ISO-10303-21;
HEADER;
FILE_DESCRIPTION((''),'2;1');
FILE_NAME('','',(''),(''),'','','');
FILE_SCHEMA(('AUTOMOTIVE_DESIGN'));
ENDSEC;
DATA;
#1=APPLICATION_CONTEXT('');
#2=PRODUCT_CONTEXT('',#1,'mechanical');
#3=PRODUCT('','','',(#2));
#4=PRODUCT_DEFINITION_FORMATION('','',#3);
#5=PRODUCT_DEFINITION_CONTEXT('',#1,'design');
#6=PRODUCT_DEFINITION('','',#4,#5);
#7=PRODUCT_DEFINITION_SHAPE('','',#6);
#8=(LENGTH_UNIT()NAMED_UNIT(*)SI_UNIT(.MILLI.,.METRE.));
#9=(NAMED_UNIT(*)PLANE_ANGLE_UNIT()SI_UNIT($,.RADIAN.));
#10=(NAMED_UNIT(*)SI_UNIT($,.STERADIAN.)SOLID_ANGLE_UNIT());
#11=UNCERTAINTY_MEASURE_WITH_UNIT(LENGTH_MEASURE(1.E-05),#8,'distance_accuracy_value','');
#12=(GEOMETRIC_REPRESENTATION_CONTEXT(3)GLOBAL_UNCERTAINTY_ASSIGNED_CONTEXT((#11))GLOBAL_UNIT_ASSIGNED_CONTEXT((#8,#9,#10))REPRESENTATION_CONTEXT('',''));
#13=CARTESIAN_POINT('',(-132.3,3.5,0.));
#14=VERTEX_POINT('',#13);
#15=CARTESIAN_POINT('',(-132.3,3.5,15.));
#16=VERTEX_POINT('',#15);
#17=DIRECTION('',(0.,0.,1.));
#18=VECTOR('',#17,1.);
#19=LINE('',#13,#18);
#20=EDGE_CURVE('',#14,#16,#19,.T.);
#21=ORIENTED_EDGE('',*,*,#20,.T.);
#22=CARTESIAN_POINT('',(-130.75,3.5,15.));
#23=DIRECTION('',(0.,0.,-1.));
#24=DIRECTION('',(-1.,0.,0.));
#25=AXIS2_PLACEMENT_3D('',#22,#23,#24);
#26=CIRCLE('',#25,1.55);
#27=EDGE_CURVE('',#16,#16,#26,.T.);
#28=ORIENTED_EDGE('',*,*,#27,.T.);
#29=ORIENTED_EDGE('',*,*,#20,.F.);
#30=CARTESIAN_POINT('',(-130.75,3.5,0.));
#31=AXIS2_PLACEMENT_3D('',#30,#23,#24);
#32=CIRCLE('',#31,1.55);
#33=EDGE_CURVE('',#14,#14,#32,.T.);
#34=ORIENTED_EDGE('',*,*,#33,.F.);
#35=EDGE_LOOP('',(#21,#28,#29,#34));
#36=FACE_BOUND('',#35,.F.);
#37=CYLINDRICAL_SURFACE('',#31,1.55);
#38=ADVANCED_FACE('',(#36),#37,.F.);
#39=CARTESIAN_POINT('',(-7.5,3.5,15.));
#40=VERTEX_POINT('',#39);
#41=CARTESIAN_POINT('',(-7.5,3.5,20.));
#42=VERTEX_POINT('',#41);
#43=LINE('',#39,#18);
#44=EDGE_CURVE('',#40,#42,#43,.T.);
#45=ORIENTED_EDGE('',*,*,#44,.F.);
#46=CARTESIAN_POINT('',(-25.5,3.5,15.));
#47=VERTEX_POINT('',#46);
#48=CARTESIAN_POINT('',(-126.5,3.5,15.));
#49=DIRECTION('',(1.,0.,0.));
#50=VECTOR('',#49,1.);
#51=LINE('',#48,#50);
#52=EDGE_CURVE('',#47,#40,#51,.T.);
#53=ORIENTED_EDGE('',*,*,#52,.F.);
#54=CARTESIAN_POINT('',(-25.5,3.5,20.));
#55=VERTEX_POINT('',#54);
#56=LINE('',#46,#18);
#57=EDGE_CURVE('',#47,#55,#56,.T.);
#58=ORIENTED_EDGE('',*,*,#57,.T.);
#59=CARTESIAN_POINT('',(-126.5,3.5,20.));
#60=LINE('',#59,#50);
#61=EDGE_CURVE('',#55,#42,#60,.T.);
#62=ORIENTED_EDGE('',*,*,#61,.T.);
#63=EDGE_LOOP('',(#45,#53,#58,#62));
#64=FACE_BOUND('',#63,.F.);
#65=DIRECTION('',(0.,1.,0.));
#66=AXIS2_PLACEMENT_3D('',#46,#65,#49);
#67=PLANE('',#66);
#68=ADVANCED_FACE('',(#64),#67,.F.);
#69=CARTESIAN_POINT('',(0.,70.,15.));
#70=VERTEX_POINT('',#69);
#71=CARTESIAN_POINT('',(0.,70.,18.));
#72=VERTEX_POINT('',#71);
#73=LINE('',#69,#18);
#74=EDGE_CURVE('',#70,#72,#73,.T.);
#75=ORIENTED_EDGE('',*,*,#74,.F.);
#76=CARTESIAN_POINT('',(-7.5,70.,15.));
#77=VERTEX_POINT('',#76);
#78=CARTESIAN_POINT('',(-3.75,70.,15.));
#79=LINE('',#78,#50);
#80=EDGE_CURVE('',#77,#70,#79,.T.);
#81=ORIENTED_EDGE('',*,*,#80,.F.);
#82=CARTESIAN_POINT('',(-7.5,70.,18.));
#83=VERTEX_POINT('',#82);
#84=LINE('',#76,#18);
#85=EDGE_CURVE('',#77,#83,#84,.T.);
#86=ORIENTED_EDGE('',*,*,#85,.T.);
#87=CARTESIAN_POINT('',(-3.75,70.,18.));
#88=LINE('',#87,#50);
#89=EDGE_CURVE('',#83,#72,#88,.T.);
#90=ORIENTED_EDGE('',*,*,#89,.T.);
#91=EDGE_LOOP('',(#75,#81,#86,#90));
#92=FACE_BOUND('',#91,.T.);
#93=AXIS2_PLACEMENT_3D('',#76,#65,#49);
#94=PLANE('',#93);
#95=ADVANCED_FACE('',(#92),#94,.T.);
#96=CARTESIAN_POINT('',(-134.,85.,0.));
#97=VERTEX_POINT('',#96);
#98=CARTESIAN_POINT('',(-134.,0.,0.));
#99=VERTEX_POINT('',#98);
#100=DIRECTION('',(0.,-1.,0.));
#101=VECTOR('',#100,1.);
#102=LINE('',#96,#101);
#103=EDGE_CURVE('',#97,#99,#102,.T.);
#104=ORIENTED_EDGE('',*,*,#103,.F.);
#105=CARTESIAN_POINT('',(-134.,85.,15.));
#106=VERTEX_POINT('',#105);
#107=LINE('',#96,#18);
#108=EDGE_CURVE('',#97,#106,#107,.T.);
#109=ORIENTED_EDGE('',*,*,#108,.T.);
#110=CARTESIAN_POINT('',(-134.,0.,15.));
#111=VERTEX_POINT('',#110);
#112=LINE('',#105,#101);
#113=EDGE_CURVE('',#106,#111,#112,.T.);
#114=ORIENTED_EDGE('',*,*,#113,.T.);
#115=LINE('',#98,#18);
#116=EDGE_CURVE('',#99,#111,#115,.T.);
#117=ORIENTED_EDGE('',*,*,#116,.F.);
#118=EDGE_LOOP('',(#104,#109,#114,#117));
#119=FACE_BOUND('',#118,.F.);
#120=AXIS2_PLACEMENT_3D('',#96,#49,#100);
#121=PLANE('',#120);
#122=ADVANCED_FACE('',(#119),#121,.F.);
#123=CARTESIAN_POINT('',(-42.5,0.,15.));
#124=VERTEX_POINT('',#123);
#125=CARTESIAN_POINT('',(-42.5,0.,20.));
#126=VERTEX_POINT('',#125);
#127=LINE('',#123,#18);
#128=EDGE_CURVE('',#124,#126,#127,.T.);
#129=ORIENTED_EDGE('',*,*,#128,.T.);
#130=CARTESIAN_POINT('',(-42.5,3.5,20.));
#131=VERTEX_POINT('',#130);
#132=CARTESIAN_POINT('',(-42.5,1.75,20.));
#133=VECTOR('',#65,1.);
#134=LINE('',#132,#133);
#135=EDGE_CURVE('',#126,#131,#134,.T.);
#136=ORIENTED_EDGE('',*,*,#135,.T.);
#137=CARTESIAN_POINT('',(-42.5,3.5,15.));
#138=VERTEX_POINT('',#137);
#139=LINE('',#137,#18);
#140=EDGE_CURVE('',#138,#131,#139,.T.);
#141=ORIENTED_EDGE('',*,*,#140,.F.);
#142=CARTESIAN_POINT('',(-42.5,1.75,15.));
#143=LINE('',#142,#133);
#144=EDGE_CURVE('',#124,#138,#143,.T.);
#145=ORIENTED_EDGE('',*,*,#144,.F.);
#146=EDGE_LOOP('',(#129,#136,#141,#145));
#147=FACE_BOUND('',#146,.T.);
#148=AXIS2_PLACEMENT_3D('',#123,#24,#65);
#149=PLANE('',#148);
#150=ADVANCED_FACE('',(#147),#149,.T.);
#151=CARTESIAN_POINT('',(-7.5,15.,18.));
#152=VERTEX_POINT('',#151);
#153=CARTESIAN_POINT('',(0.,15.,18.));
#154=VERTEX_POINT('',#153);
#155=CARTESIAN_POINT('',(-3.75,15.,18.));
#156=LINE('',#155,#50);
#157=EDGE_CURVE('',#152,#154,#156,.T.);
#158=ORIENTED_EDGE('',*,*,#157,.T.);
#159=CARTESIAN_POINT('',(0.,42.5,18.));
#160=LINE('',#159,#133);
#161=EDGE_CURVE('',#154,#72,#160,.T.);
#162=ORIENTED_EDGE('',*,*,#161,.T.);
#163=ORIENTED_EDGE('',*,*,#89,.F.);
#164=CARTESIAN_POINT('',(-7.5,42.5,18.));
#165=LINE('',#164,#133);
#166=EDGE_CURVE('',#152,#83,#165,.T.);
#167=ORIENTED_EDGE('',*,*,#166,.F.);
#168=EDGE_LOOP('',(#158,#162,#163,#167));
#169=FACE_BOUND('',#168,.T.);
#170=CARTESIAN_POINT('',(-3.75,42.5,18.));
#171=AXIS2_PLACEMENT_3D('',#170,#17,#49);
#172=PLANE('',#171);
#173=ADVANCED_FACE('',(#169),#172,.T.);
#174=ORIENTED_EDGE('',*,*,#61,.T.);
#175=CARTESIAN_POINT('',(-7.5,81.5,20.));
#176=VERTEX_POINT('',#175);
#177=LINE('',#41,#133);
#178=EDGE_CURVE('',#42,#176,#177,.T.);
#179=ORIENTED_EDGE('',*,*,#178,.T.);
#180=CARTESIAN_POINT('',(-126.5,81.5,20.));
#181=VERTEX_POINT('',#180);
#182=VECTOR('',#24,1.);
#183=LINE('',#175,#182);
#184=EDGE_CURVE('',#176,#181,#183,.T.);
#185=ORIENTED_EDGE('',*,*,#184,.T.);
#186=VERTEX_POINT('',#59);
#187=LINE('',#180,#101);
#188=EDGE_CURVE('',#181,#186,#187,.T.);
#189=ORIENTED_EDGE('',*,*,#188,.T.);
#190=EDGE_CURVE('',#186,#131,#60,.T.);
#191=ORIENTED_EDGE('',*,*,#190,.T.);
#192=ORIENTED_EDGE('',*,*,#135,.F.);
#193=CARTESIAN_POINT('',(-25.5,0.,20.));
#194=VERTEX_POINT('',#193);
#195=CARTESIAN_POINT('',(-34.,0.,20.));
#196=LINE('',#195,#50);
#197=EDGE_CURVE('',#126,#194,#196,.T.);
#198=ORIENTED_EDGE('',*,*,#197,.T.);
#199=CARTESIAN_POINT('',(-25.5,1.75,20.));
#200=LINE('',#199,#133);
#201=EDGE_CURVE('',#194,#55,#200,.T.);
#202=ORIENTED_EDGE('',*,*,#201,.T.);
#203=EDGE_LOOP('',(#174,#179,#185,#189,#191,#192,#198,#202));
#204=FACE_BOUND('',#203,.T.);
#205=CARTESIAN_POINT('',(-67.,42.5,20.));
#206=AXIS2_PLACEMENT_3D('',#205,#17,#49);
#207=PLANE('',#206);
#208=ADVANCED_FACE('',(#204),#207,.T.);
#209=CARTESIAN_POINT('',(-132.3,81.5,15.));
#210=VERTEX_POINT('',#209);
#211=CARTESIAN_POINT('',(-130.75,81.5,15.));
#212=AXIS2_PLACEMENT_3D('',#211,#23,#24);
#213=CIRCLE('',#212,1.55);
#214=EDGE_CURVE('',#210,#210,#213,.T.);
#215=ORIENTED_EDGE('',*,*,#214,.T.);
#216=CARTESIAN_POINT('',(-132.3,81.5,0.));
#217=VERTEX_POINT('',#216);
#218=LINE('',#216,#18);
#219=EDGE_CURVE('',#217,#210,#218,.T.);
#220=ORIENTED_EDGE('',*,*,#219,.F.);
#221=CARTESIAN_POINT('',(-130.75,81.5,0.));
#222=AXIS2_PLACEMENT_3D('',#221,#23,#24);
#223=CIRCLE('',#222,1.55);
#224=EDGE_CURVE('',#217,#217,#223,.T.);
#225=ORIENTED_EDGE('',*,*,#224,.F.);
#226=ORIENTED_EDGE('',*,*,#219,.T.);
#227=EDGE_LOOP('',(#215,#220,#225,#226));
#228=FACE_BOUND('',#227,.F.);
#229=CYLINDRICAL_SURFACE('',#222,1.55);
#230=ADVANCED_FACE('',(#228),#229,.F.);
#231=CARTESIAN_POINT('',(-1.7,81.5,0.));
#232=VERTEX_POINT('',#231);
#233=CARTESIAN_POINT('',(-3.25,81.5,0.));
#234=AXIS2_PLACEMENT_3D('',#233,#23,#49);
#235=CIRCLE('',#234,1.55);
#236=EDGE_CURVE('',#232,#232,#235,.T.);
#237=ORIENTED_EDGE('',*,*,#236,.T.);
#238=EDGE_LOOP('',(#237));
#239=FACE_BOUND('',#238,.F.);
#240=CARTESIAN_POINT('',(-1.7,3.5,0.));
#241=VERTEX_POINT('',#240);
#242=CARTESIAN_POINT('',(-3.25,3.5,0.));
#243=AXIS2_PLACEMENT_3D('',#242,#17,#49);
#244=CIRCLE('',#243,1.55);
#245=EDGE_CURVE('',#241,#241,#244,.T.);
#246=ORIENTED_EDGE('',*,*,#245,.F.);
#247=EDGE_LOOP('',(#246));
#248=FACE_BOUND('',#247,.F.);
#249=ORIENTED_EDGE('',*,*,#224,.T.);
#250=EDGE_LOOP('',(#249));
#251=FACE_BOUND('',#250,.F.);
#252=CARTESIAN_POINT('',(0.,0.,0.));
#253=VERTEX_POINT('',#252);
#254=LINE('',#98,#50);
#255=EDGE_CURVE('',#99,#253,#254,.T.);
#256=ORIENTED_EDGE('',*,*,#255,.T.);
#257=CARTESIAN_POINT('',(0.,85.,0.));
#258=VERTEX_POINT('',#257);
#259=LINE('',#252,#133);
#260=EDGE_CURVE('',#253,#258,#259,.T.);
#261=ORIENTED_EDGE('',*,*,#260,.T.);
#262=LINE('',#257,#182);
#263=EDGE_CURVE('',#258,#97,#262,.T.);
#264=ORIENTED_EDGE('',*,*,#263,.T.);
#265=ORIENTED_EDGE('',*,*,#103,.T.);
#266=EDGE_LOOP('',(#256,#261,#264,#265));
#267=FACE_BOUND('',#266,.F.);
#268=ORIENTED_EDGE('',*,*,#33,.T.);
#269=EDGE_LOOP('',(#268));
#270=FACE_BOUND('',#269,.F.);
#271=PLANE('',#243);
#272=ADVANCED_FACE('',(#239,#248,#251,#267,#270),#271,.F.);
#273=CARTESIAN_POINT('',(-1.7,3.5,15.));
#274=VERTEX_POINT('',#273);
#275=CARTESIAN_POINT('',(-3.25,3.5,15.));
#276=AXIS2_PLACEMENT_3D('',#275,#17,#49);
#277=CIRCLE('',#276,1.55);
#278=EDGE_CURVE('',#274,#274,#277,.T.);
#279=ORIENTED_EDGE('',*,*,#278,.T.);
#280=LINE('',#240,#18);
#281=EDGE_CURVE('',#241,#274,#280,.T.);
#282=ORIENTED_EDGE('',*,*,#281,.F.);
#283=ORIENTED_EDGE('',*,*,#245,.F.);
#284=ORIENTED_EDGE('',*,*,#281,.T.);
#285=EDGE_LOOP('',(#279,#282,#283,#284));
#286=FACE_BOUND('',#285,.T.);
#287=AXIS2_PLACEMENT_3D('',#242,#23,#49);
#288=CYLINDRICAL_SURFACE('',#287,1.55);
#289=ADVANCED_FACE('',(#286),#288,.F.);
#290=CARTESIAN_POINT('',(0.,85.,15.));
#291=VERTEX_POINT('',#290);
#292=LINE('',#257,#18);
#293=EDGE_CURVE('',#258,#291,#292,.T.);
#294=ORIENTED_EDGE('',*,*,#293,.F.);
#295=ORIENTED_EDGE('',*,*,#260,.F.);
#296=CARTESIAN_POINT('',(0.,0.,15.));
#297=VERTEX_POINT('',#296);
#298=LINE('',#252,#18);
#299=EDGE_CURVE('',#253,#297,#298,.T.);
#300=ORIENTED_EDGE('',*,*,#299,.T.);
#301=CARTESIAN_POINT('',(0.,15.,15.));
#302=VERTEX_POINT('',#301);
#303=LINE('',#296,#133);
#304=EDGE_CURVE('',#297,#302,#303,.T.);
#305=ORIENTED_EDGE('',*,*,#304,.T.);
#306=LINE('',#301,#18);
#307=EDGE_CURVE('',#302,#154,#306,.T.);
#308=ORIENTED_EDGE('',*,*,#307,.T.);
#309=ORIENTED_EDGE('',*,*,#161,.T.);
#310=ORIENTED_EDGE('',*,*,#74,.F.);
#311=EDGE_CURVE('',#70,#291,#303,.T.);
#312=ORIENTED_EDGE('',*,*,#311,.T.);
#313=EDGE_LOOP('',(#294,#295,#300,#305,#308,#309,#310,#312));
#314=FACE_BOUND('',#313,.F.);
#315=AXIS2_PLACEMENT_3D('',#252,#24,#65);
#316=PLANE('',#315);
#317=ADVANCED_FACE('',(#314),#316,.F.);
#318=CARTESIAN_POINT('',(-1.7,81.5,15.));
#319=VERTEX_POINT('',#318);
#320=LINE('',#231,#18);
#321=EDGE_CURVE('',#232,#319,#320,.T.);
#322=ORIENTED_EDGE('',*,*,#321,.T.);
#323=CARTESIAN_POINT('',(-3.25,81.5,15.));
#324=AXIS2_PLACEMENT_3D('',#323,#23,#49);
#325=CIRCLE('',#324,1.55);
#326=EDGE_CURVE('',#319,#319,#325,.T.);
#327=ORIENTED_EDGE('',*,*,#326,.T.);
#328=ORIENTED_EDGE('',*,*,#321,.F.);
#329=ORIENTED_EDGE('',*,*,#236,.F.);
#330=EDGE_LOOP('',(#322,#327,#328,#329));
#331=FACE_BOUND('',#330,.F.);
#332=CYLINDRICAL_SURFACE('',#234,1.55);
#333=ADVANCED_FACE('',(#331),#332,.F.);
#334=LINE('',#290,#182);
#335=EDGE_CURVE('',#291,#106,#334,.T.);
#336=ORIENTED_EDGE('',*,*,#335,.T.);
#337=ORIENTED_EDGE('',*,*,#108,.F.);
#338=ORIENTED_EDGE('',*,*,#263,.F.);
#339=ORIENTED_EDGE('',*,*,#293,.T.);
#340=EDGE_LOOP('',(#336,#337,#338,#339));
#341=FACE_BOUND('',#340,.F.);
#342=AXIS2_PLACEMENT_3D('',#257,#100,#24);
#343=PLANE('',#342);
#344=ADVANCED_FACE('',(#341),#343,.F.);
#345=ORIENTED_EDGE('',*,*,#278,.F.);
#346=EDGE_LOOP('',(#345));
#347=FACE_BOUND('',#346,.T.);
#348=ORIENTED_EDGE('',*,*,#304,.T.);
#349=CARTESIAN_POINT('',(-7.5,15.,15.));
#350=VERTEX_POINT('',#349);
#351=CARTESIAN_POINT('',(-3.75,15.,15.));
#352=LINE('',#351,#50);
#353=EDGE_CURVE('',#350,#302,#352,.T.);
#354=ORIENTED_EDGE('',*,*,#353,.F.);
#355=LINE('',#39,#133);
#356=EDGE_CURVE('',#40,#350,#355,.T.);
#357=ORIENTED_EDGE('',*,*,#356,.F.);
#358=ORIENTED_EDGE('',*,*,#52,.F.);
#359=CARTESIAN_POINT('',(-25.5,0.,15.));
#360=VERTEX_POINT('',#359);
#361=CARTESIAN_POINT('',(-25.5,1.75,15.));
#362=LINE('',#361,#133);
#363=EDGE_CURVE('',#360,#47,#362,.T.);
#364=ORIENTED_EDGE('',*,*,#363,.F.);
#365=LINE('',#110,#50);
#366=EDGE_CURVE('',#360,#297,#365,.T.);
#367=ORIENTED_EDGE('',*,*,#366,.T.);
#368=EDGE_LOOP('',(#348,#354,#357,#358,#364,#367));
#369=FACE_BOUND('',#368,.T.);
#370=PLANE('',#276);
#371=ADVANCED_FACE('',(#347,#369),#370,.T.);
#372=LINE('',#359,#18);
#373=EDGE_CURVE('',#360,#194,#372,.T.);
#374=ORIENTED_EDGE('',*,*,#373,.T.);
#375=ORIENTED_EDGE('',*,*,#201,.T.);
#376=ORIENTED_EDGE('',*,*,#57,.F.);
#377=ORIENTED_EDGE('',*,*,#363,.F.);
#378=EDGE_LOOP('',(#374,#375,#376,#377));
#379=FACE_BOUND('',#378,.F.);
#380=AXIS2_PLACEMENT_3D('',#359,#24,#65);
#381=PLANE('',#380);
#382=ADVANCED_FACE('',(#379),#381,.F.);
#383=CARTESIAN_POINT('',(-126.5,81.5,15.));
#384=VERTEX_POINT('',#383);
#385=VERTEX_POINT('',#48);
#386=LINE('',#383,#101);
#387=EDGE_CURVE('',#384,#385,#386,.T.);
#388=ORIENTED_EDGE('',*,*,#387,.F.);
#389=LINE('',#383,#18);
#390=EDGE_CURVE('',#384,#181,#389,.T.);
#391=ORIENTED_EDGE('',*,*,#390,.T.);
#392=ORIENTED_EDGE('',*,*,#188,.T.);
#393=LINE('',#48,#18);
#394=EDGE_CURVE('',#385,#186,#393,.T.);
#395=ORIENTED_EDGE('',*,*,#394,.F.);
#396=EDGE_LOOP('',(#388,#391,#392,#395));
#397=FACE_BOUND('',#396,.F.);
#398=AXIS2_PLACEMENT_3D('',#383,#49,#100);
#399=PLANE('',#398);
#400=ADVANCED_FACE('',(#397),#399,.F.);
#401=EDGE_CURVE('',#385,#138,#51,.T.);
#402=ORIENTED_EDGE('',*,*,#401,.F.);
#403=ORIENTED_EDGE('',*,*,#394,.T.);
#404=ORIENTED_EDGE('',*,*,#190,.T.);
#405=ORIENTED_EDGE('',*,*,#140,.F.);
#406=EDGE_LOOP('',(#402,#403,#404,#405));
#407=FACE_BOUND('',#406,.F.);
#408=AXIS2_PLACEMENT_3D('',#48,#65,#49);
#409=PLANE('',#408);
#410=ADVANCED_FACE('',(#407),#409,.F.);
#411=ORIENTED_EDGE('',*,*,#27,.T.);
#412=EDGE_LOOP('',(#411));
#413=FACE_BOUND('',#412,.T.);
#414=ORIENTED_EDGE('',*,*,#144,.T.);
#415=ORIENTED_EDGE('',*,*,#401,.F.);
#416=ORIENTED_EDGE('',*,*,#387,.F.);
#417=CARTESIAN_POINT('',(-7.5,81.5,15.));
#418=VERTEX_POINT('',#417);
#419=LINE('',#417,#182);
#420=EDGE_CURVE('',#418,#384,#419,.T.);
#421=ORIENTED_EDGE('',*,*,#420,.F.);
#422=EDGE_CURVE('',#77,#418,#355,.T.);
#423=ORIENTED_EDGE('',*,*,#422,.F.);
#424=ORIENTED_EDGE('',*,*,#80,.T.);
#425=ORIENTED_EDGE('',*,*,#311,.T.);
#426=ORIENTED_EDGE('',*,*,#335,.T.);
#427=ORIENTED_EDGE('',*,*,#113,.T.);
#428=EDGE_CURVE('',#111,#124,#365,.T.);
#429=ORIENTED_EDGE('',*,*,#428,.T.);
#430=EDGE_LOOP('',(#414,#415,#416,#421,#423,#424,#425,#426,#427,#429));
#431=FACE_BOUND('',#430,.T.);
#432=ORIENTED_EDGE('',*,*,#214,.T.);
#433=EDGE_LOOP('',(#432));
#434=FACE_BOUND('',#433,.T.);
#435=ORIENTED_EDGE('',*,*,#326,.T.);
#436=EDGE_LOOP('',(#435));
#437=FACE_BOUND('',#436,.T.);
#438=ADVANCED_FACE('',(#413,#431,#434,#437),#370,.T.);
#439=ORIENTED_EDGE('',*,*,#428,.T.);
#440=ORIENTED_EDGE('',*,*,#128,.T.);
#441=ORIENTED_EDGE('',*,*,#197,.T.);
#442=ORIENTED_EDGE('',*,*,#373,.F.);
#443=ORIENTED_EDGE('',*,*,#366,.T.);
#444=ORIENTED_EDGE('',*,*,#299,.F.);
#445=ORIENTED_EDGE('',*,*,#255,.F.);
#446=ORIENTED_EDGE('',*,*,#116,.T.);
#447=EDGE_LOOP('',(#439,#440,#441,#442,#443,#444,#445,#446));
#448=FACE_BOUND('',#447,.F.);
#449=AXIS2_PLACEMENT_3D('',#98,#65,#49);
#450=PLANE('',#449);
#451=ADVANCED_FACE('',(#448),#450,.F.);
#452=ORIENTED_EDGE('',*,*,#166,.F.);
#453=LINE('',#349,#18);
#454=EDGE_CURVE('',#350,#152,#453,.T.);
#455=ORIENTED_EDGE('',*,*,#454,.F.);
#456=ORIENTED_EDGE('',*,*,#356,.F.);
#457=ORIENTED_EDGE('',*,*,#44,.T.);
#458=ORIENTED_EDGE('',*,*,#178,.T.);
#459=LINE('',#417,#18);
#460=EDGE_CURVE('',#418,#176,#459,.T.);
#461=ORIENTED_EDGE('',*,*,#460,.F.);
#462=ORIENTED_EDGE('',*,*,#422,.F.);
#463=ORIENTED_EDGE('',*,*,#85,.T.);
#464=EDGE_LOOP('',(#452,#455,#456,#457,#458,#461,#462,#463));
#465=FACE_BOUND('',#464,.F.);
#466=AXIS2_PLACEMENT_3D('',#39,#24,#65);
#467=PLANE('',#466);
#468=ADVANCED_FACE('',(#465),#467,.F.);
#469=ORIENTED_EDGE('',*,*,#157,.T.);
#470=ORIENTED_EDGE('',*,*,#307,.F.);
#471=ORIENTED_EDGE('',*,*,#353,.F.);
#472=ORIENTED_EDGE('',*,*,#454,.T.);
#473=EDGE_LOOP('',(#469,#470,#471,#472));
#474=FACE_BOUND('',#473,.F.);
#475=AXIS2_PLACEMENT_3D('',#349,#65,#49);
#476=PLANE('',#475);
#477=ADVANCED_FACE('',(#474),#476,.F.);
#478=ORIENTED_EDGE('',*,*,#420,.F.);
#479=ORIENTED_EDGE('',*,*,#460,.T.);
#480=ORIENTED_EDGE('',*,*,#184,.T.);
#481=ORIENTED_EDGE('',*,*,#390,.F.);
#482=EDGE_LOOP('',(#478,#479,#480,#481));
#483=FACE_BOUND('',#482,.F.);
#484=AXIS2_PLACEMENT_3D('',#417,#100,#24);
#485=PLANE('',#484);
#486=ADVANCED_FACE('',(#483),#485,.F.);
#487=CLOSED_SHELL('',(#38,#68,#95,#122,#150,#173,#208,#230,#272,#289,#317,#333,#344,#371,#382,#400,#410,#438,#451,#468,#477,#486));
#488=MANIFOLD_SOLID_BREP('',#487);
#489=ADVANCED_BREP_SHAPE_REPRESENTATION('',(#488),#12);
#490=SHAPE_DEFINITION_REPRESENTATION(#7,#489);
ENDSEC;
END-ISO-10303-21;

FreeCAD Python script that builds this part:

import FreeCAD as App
import Part
import Sketcher
from FreeCAD import Vector
Q = App.Units.Quantity


def add_polygon(sketch, points):
    """Adds a closed chain of lines whose ends are joined by coincident constraints."""
    first, n = sketch.GeometryCount, len(points)
    for a, b in zip(points, points[1:] + points[:1]):
        sketch.addGeometry(Part.LineSegment(App.Vector(*a, 0), App.Vector(*b, 0)), False)
    for i in range(n):
        sketch.addConstraint(Sketcher.Constraint("Coincident", first + i, 2, first + (i + 1) % n, 1))

doc = App.newDocument("Part")
body = doc.addObject("PartDesign::Body", "Body")

sketch1 = body.newObject("Sketcher::SketchObject", "Sketch")
sketch1.AttachmentSupport = (doc.getObject("XY_Plane"), [""])
sketch1.MapMode = "FlatFace"
add_polygon(sketch1, [(-134, 0), (0, 0), (0, 85), (-134, 85)])
sketch1.addGeometry(Part.Circle(Vector(-130.75, 3.5, 0), Vector(0, 0, 1), 1.55), False)
sketch1.addGeometry(Part.Circle(Vector(-3.25, 3.5, 0), Vector(0, 0, 1), 1.55), False)
sketch1.addGeometry(Part.Circle(Vector(-130.75, 81.5, 0), Vector(0, 0, 1), 1.55), False)
sketch1.addGeometry(Part.Circle(Vector(-3.25, 81.5, 0), Vector(0, 0, 1), 1.55), False)
sketch1.addConstraint([
    Sketcher.Constraint("Horizontal", 0),
    Sketcher.Constraint("Vertical", 1),
    Sketcher.Constraint("Horizontal", 2),
    Sketcher.Constraint("Vertical", 3),
    Sketcher.Constraint("Coincident", 0, 2, -1, 1),
    Sketcher.Constraint("Equal", 4, 5),
    Sketcher.Constraint("Equal", 5, 6),
    Sketcher.Constraint("Equal", 6, 7),
    Sketcher.Constraint("Horizontal", 4, 3, 5, 3),
    Sketcher.Constraint("Horizontal", 6, 3, 7, 3),
    Sketcher.Constraint("Vertical", 4, 3, 6, 3),
    Sketcher.Constraint("Vertical", 5, 3, 7, 3),
    Sketcher.Constraint("Diameter", 4, Q("3.1 mm")),
    Sketcher.Constraint("DistanceX", 0, 1, 0, 2, Q("134 mm")),
    Sketcher.Constraint("DistanceY", 1, 1, 1, 2, Q("85 mm")),
    Sketcher.Constraint("DistanceY", 4, 3, 6, 3, Q("78 mm")),
    Sketcher.Constraint("DistanceY", -1, 1, 4, 3, Q("3.5 mm")),
    Sketcher.Constraint("DistanceX", 4, 3, 5, 3, Q("127.5 mm")),
    Sketcher.Constraint("DistanceX", 4, 3, -1, 1, Q("130.75 mm")),
])
pad1 = body.newObject("PartDesign::Pad", "Pad")
pad1.Profile = sketch1
pad1.Length = 15

sketch2 = body.newObject("Sketcher::SketchObject", "Sketch001")
sketch2.AttachmentSupport = (doc.getObject("XY_Plane"), [""])
sketch2.MapMode = "FlatFace"
sketch2.AttachmentOffset = App.Placement(Vector(0, 0, 15), App.Rotation())
add_polygon(sketch2, [(-7.5, 3.5), (-7.5, 81.5), (-126.5, 81.5), (-126.5, 3.5), (-42.5, 3.5), (-42.5, 0), (-25.5, 0), (-25.5, 3.5)])
sketch2.addConstraint([
    Sketcher.Constraint("Vertical", 0),
    Sketcher.Constraint("Horizontal", 1),
    Sketcher.Constraint("Vertical", 2),
    Sketcher.Constraint("Horizontal", 3),
    Sketcher.Constraint("Vertical", 4),
    Sketcher.Constraint("Horizontal", 5),
    Sketcher.Constraint("Vertical", 6),
    Sketcher.Constraint("Horizontal", 7),
    Sketcher.Constraint("PointOnObject", 4, 2, -1),
    Sketcher.Constraint("Horizontal", 3, 2, 6, 2),
    Sketcher.Constraint("DistanceX", 1, 2, 1, 1, Q("119 mm")),
    Sketcher.Constraint("DistanceX", 3, 1, 3, 2, Q("84 mm")),
    Sketcher.Constraint("DistanceX", 5, 1, 5, 2, Q("17 mm")),
    Sketcher.Constraint("DistanceY", 0, 1, 0, 2, Q("78 mm")),
    Sketcher.Constraint("DistanceY", 4, 2, 4, 1, Q("3.5 mm")),
    Sketcher.Constraint("DistanceX", 0, 2, -1, 1, Q("7.5 mm")),
])
pad2 = body.newObject("PartDesign::Pad", "Pad001")
pad2.Profile = sketch2
pad2.Length = 5

sketch3 = body.newObject("Sketcher::SketchObject", "Sketch002")
sketch3.AttachmentSupport = (doc.getObject("XY_Plane"), [""])
sketch3.MapMode = "FlatFace"
sketch3.AttachmentOffset = App.Placement(Vector(0, 0, 15), App.Rotation())
add_polygon(sketch3, [(-7.5, 70), (-7.5, 15), (0, 15), (0, 70)])
sketch3.addConstraint([
    Sketcher.Constraint("Vertical", 0),
    Sketcher.Constraint("Horizontal", 1),
    Sketcher.Constraint("Vertical", 2),
    Sketcher.Constraint("Horizontal", 3),
    Sketcher.Constraint("PointOnObject", 1, 2, -2),
    Sketcher.Constraint("DistanceY", 0, 2, 0, 1, Q("55 mm")),
    Sketcher.Constraint("DistanceX", 1, 1, 1, 2, Q("7.5 mm")),
    Sketcher.Constraint("DistanceY", -1, 1, 0, 2, Q("15 mm")),
])
pad3 = body.newObject("PartDesign::Pad", "Pad002")
pad3.Profile = sketch3
pad3.Length = 3

doc.recompute()
